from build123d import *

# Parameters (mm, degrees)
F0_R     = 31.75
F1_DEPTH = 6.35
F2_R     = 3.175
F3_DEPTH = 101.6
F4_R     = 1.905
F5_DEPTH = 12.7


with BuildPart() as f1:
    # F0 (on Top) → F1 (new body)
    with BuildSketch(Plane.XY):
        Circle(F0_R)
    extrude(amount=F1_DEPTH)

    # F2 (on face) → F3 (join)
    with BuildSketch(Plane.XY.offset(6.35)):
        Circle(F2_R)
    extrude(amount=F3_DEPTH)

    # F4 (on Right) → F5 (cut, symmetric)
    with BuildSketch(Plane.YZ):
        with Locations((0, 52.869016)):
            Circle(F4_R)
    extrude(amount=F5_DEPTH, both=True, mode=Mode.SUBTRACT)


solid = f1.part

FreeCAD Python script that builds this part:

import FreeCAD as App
import Part
import Sketcher
from FreeCAD import Vector
Q = App.Units.Quantity

doc = App.newDocument("Part")
params = doc.addObject("Spreadsheet::Sheet", "Params")
for row, (alias, value) in enumerate([
    ("sketch1_diameter", "2.5 in"),
    ("pad1_length", "0.25 in"),
    ("sketch2_diameter", "0.25 in"),
    ("pad2_length", "4 in"),
    ("sketch3_diameter", "0.15 in"),
    ("pocket1_length", "1 in"),
], start=1):
    params.set(f"A{row}", alias)
    params.set(f"B{row}", "=" + value)
    params.setAlias(f"B{row}", alias)

body = doc.addObject("PartDesign::Body", "Body")

# Sketch on XY plane
sketch1 = body.newObject("Sketcher::SketchObject", "Sketch")
sketch1.AttachmentSupport = (doc.getObject("XY_Plane"), [""])
sketch1.MapMode = "FlatFace"
sketch1.addGeometry(Part.Circle(Vector(0, 0, 0), Vector(0, 0, 1), 32), False)
sketch1.addConstraint([
    Sketcher.Constraint("Coincident", 0, 3, -1, 1),
    Sketcher.Constraint("Diameter", 0, Q("2.5 in")),
])
sketch1.setExpression("Constraints[1]", "Params.sketch1_diameter")
pad1 = body.newObject("PartDesign::Pad", "Pad")
pad1.Profile = sketch1
pad1.setExpression("Length", "Params.pad1_length")

# Sketch on XY plane
sketch2 = body.newObject("Sketcher::SketchObject", "Sketch001")
sketch2.AttachmentSupport = (doc.getObject("XY_Plane"), [""])
sketch2.MapMode = "FlatFace"
sketch2.AttachmentOffset = App.Placement(Vector(0, 0, 0.25 * 25.4), App.Rotation())
sketch2.addGeometry(Part.Circle(Vector(0, 0, 0), Vector(0, 0, 1), 3.2), False)
sketch2.addConstraint([
    Sketcher.Constraint("Coincident", 0, 3, -1, 1),
    Sketcher.Constraint("Diameter", 0, Q("0.25 in")),
])
sketch2.setExpression("Constraints[1]", "Params.sketch2_diameter")
pad2 = body.newObject("PartDesign::Pad", "Pad001")
pad2.Profile = sketch2
pad2.setExpression("Length", "Params.pad2_length")

# Sketch on YZ plane
sketch3 = body.newObject("Sketcher::SketchObject", "Sketch002")
sketch3.AttachmentSupport = (doc.getObject("YZ_Plane"), [""])
sketch3.MapMode = "FlatFace"
sketch3.addGeometry(Part.Circle(Vector(0, 52.9, 0), Vector(0, 0, 1), 1.9), False)
sketch3.addConstraint([
    Sketcher.Constraint("PointOnObject", 0, 3, -2),
    Sketcher.Constraint("Diameter", 0, Q("0.15 in")),
    Sketcher.Constraint("DistanceY", -1, 1, 0, 3, Q("52.869016 mm")),
])
sketch3.setExpression("Constraints[1]", "Params.sketch3_diameter")
pocket1 = body.newObject("PartDesign::Pocket", "Pocket")
pocket1.Profile = sketch3
pocket1.setExpression("Length", "Params.pocket1_length")
pocket1.Midplane = True

doc.recompute()
